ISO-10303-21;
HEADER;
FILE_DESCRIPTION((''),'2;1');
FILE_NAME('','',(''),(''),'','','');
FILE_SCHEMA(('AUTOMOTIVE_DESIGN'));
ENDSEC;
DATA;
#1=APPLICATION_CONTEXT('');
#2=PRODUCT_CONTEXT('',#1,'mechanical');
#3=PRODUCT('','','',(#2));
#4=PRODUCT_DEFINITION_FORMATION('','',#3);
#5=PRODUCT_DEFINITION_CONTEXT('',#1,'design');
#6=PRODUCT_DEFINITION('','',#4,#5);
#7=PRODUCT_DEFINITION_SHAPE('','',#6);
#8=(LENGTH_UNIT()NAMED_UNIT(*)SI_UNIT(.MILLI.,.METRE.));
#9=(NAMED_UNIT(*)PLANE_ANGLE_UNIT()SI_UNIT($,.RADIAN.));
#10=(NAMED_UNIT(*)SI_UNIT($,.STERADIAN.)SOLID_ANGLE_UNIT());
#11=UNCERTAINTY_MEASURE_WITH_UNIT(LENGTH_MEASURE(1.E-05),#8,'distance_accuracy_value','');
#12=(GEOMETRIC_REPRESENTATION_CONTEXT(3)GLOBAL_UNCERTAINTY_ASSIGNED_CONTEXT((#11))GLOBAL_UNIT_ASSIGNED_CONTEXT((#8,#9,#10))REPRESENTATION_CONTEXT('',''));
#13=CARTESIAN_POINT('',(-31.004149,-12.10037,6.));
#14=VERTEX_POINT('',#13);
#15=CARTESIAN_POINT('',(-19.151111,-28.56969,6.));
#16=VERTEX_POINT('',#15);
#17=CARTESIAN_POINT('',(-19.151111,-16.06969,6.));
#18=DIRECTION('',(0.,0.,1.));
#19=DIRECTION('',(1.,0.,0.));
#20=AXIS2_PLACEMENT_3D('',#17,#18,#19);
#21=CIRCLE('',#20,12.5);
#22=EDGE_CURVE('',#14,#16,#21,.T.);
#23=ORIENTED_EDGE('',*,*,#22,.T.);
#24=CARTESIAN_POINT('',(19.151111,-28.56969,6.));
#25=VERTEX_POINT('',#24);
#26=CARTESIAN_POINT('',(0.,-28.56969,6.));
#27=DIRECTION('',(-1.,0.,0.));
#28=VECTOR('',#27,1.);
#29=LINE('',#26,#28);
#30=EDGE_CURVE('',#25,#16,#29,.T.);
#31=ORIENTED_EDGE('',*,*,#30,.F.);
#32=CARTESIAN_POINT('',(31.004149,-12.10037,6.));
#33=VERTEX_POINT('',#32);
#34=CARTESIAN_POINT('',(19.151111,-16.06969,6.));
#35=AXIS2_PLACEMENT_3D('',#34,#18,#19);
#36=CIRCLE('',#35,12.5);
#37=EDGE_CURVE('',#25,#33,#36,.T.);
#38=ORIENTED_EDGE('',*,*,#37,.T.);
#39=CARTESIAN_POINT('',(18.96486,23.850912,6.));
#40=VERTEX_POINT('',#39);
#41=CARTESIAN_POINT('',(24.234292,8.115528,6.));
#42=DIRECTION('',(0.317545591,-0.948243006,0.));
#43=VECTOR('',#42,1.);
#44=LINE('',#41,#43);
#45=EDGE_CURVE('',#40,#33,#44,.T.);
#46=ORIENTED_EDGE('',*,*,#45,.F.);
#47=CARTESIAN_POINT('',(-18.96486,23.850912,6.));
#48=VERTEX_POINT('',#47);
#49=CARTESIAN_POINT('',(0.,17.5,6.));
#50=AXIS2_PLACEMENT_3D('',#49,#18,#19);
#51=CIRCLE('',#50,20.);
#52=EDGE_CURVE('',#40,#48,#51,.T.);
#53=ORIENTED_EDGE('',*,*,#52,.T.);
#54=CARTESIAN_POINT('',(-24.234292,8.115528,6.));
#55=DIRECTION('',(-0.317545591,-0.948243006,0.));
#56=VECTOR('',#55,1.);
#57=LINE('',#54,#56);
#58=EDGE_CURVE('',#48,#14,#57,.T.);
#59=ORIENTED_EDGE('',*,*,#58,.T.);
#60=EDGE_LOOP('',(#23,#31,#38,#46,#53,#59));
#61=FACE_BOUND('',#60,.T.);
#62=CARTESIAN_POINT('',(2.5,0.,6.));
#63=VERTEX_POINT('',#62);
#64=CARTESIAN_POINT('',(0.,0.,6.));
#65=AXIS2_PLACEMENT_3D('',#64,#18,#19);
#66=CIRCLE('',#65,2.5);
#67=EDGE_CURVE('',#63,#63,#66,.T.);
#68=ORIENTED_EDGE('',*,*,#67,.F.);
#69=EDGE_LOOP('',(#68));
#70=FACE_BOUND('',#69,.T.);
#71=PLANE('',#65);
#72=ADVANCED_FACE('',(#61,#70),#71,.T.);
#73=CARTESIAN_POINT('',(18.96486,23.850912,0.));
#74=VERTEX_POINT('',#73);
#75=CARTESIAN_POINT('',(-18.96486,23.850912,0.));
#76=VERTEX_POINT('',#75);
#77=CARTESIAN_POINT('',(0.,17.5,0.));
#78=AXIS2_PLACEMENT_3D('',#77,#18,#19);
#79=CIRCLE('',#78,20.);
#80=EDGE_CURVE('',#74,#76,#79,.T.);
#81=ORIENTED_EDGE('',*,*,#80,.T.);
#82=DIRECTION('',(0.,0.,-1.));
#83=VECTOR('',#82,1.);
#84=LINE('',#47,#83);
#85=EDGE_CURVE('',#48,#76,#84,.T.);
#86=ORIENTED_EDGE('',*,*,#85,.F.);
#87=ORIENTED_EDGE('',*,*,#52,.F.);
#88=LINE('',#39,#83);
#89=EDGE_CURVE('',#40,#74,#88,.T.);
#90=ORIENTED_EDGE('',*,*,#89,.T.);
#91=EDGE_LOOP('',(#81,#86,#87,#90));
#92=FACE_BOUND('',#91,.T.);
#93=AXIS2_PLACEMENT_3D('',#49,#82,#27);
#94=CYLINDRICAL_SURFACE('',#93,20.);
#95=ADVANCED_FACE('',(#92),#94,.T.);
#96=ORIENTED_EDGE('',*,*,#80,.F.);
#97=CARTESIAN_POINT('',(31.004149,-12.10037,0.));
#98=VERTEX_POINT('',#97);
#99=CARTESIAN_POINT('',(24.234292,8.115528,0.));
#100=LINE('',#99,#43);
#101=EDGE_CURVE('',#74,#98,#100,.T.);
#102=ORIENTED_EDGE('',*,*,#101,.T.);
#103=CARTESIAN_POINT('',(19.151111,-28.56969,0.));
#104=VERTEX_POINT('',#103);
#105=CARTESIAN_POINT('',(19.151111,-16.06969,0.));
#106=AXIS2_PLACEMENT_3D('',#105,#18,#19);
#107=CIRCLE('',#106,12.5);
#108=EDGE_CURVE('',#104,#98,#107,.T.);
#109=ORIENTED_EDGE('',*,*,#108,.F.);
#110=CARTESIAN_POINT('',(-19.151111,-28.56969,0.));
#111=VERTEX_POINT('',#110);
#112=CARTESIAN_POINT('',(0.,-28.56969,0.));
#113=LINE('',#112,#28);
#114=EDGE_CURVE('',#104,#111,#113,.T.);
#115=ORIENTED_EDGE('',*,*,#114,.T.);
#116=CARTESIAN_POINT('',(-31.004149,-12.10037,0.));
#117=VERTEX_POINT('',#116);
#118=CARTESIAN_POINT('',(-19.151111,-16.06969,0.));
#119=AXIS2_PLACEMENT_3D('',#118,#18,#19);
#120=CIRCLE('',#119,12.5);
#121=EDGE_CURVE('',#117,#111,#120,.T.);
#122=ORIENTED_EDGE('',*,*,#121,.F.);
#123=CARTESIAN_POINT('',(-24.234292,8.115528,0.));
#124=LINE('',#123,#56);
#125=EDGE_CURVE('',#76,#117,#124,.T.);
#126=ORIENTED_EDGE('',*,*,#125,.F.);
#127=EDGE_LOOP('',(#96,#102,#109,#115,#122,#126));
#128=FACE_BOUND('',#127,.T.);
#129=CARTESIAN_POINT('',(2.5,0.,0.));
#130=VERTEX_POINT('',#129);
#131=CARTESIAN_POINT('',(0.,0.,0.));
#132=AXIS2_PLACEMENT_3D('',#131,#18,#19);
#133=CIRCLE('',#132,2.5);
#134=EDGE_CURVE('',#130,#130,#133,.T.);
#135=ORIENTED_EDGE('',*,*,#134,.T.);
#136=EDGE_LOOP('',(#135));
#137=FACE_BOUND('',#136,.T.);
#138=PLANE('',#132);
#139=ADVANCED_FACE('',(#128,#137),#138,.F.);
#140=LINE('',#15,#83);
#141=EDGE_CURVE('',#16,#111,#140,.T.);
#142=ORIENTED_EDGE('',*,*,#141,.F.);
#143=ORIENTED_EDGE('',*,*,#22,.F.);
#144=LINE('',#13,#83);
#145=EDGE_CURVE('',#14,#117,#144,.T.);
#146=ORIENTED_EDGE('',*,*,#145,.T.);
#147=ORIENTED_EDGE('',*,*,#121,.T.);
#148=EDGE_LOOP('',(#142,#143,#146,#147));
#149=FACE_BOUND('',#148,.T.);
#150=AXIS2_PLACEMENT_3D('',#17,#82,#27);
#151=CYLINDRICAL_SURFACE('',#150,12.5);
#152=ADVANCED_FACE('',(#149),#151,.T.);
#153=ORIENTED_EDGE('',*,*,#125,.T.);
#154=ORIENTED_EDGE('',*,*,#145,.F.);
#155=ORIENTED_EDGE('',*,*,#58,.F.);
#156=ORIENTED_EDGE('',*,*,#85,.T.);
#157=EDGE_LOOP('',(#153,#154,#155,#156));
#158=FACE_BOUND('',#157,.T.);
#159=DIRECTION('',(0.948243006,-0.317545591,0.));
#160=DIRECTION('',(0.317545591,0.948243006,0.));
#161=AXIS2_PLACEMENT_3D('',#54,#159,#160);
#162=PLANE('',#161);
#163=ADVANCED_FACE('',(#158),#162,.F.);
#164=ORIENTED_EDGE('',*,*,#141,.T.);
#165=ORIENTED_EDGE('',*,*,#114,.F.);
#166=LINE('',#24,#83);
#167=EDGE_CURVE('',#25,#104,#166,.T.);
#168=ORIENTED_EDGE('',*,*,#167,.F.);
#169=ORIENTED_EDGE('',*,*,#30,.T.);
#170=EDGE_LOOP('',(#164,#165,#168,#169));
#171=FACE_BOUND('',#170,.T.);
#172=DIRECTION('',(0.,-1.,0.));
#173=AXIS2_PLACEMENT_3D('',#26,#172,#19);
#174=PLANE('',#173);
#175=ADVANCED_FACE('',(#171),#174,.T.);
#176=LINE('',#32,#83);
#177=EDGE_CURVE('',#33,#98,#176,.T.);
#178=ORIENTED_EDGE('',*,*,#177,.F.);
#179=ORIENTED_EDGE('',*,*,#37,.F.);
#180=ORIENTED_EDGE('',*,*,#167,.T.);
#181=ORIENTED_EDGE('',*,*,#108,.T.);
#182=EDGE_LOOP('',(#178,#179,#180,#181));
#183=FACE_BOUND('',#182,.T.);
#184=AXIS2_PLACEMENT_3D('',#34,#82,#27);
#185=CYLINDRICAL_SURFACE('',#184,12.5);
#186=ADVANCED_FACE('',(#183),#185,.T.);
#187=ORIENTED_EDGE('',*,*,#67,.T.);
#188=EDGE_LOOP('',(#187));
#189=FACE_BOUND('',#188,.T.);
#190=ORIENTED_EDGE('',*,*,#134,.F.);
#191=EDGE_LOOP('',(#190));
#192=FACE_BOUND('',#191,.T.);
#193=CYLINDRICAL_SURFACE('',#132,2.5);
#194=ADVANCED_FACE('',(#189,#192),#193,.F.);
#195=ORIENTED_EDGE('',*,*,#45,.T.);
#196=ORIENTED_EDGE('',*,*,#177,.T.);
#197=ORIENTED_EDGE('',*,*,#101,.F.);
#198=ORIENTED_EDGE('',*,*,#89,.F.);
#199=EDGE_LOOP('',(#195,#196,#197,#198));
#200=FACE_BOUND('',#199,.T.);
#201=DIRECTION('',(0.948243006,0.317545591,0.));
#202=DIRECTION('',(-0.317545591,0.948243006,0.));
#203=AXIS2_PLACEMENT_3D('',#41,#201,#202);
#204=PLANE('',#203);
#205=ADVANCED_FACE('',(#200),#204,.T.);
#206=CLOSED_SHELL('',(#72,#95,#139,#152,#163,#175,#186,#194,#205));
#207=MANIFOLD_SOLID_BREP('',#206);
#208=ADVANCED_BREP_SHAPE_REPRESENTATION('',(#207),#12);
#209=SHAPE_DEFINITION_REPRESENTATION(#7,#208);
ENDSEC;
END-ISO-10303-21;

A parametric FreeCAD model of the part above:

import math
import FreeCAD as App
import Part
import Sketcher
from FreeCAD import Vector
Q = App.Units.Quantity

doc = App.newDocument("Part")
params = doc.addObject("Spreadsheet::Sheet", "Params")
for row, (alias, value) in enumerate([
    ("sketch1_radius", "20 mm"),
    ("sketch1_radius2", "12.5 mm"),
    ("pad1_length", "6 mm"),
    ("sketch2_diameter", "5 mm"),
], start=1):
    params.set(f"A{row}", alias)
    params.set(f"B{row}", "=" + value)
    params.setAlias(f"B{row}", alias)

body = doc.addObject("PartDesign::Body", "Body")

sketch1 = body.newObject("Sketcher::SketchObject", "Sketch")
sketch1.AttachmentSupport = (doc.getObject("XY_Plane"), [""])
sketch1.MapMode = "FlatFace"
sketch1.addGeometry([
    Part.ArcOfCircle(Part.Circle(Vector(0, 18, 0), Vector(0, 0, 1), 20), math.radians(19), math.radians(161)),
    Part.LineSegment(Vector(-19, 24, 0), Vector(-31, -12, 0)),
    Part.ArcOfCircle(Part.Circle(Vector(-19, -16, 0), Vector(0, 0, 1), 12), math.radians(161), math.radians(270)),
    Part.LineSegment(Vector(-19, -29, 0), Vector(19, -29, 0)),
    Part.ArcOfCircle(Part.Circle(Vector(19, -16, 0), Vector(0, 0, 1), 12), math.radians(-90), math.radians(19)),
    Part.LineSegment(Vector(31, -12, 0), Vector(19, 24, 0)),
], False)
sketch1.addConstraint([
    Sketcher.Constraint("Tangent", 0, 2, 1, 1),
    Sketcher.Constraint("Tangent", 1, 2, 2, 1),
    Sketcher.Constraint("Tangent", 2, 2, 3, 1),
    Sketcher.Constraint("Tangent", 3, 2, 4, 1),
    Sketcher.Constraint("Tangent", 4, 2, 5, 1),
    Sketcher.Constraint("Tangent", 5, 2, 0, 1),
    Sketcher.Constraint("Horizontal", 3),
    Sketcher.Constraint("Equal", 2, 4),
    Sketcher.Constraint("Symmetric", 1, 2, 4, 2, -2),
    Sketcher.Constraint("Radius", 0, Q("20 mm")),
    Sketcher.Constraint("Radius", 2, Q("12.5 mm")),
    Sketcher.Constraint("DistanceY", -1, 1, 0, 3, Q("17.5 mm")),
    Sketcher.Constraint("DistanceX", 3, 1, 3, 2, Q("38.302222 mm")),
    Sketcher.Constraint("DistanceY", 2, 3, -1, 1, Q("16.06969 mm")),
])
sketch1.setExpression("Constraints[9]", "Params.sketch1_radius")
sketch1.setExpression("Constraints[10]", "Params.sketch1_radius2")
pad1 = body.newObject("PartDesign::Pad", "Pad")
pad1.Profile = sketch1
pad1.setExpression("Length", "Params.pad1_length")

sketch2 = body.newObject("Sketcher::SketchObject", "Sketch001")
sketch2.AttachmentSupport = (doc.getObject("XY_Plane"), [""])
sketch2.MapMode = "FlatFace"
sketch2.AttachmentOffset = App.Placement(Vector(0, 0, 6), App.Rotation())
sketch2.addGeometry(Part.Circle(Vector(0, 0, 0), Vector(0, 0, 1), 2.5), False)
sketch2.addConstraint([
    Sketcher.Constraint("Coincident", 0, 3, -1, 1),
    Sketcher.Constraint("Diameter", 0, Q("5 mm")),
])
sketch2.setExpression("Constraints[1]", "Params.sketch2_diameter")
pocket1 = body.newObject("PartDesign::Pocket", "Pocket")
pocket1.Profile = sketch2
pocket1.Type = "ThroughAll"

doc.recompute()
